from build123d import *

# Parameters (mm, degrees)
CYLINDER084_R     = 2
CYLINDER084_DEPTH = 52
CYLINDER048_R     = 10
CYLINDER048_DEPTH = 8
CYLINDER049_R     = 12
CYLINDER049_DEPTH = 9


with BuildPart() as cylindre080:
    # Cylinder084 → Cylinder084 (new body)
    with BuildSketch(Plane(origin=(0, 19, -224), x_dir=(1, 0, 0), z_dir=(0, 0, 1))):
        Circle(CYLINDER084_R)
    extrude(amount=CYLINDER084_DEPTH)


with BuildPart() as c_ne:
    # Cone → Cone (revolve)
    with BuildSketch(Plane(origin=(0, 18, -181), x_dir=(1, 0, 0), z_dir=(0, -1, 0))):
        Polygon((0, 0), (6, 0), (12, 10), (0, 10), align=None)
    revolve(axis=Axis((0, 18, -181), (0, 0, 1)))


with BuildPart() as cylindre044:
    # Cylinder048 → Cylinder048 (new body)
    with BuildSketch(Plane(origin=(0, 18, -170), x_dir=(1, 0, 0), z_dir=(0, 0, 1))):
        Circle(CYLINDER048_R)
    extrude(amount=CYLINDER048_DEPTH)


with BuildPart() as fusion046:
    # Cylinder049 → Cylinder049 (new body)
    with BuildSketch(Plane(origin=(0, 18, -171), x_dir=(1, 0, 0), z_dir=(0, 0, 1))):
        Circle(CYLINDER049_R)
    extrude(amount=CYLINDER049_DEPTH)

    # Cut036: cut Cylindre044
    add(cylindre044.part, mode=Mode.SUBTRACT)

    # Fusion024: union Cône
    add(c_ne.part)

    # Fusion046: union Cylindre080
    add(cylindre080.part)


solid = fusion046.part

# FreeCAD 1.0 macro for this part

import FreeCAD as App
import Part
import Sketcher
from FreeCAD import Vector
Q = App.Units.Quantity


def add_polygon(sketch, points):
    """Adds a closed chain of lines whose ends are joined by coincident constraints."""
    first, n = sketch.GeometryCount, len(points)
    for a, b in zip(points, points[1:] + points[:1]):
        sketch.addGeometry(Part.LineSegment(App.Vector(*a, 0), App.Vector(*b, 0)), False)
    for i in range(n):
        sketch.addConstraint(Sketcher.Constraint("Coincident", first + i, 2, first + (i + 1) % n, 1))

doc = App.newDocument("Part")
params = doc.addObject("Spreadsheet::Sheet", "Params")
for row, (alias, value) in enumerate([
    ("sketch1_diameter", "4 mm"),
    ("pad1_length", "52 mm"),
    ("sketch2_width", "6 mm"),
    ("sketch2_width2", "12 mm"),
    ("sketch2_height", "10 mm"),
    ("revolution_angle", "360 deg"),
    ("sketch3_diameter", "20 mm"),
    ("pad2_length", "8 mm"),
    ("sketch4_diameter", "24 mm"),
    ("pad3_length", "9 mm"),
], start=1):
    params.set(f"A{row}", alias)
    params.set(f"B{row}", "=" + value)
    params.setAlias(f"B{row}", alias)

body = doc.addObject("PartDesign::Body", "Body")

# Sketch on XY plane
sketch1 = doc.addObject("Sketcher::SketchObject", "Sketch")
body.addObject(sketch1)
sketch1.AttachmentSupport = (doc.XY_Plane, [""])
sketch1.MapMode = "FlatFace"
sketch1.AttachmentOffset = App.Placement(Vector(0, 0, -224), App.Rotation())
sketch1.addGeometry(Part.Circle(Vector(0, 19, 0), Vector(0, 0, 1), 2), False)
sketch1.addConstraint(Sketcher.Constraint("PointOnObject", 0, 3, -2))
sketch1.addConstraint(Sketcher.Constraint("Diameter", 0, Q("4 mm")))
sketch1.addConstraint(Sketcher.Constraint("DistanceY", -1, 1, 0, 3, Q("19 mm")))
sketch1.setExpression("Constraints[1]", "Params.sketch1_diameter")
pad1 = doc.addObject("PartDesign::Pad", "Pad")
body.addObject(pad1)
pad1.Profile = sketch1
pad1.setExpression("Length", "Params.pad1_length")
body2 = doc.addObject("PartDesign::Body", "Body001")

# Sketch on XZ plane
sketch2 = doc.addObject("Sketcher::SketchObject", "Sketch001")
body2.addObject(sketch2)
sketch2.AttachmentSupport = (doc.getObject("XZ_Plane001"), [""])
sketch2.MapMode = "FlatFace"
sketch2.AttachmentOffset = App.Placement(Vector(0, 0, -18), App.Rotation())
add_polygon(sketch2, [(0, -181), (6, -181), (12, -171), (0, -171)])  # lines 0-3
sketch2.addConstraint(Sketcher.Constraint("Horizontal", 0))
sketch2.addConstraint(Sketcher.Constraint("Horizontal", 2))
sketch2.addConstraint(Sketcher.Constraint("Vertical", 3))
sketch2.addConstraint(Sketcher.Constraint("PointOnObject", 2, 2, -2))
sketch2.addConstraint(Sketcher.Constraint("DistanceX", 0, 1, 0, 2, Q("6 mm")))
sketch2.addConstraint(Sketcher.Constraint("DistanceX", 2, 2, 2, 1, Q("12 mm")))
sketch2.addConstraint(Sketcher.Constraint("DistanceY", 3, 2, 3, 1, Q("10 mm")))
sketch2.addConstraint(Sketcher.Constraint("DistanceY", 0, 2, -1, 1, Q("181 mm")))
sketch2.setExpression("Constraints[8]", "Params.sketch2_width")
sketch2.setExpression("Constraints[9]", "Params.sketch2_width2")
sketch2.setExpression("Constraints[10]", "Params.sketch2_height")
revolution = doc.addObject("PartDesign::Revolution", "Revolution")
body2.addObject(revolution)
revolution.Profile = sketch2
revolution.ReferenceAxis = (sketch2, ["V_Axis"])
revolution.setExpression("Angle", "Params.revolution_angle")
body3 = doc.addObject("PartDesign::Body", "Body002")

# Sketch on XY plane
sketch3 = doc.addObject("Sketcher::SketchObject", "Sketch002")
body3.addObject(sketch3)
sketch3.AttachmentSupport = (doc.getObject("XY_Plane002"), [""])
sketch3.MapMode = "FlatFace"
sketch3.AttachmentOffset = App.Placement(Vector(0, 0, -170), App.Rotation())
sketch3.addGeometry(Part.Circle(Vector(0, 18, 0), Vector(0, 0, 1), 10), False)
sketch3.addConstraint(Sketcher.Constraint("PointOnObject", 0, 3, -2))
sketch3.addConstraint(Sketcher.Constraint("Diameter", 0, Q("20 mm")))
sketch3.addConstraint(Sketcher.Constraint("DistanceY", -1, 1, 0, 3, Q("18 mm")))
sketch3.setExpression("Constraints[1]", "Params.sketch3_diameter")
pad2 = doc.addObject("PartDesign::Pad", "Pad001")
body3.addObject(pad2)
pad2.Profile = sketch3
pad2.setExpression("Length", "Params.pad2_length")
body4 = doc.addObject("PartDesign::Body", "Body003")

# Sketch on XY plane
sketch4 = doc.addObject("Sketcher::SketchObject", "Sketch003")
body4.addObject(sketch4)
sketch4.AttachmentSupport = (doc.getObject("XY_Plane003"), [""])
sketch4.MapMode = "FlatFace"
sketch4.AttachmentOffset = App.Placement(Vector(0, 0, -171), App.Rotation())
sketch4.addGeometry(Part.Circle(Vector(0, 18, 0), Vector(0, 0, 1), 12), False)
sketch4.addConstraint(Sketcher.Constraint("PointOnObject", 0, 3, -2))
sketch4.addConstraint(Sketcher.Constraint("Diameter", 0, Q("24 mm")))
sketch4.addConstraint(Sketcher.Constraint("DistanceY", -1, 1, 0, 3, Q("18 mm")))
sketch4.setExpression("Constraints[1]", "Params.sketch4_diameter")
pad3 = doc.addObject("PartDesign::Pad", "Pad002")
body4.addObject(pad3)
pad3.Profile = sketch4
pad3.setExpression("Length", "Params.pad3_length")
doc.recompute()

boolean = doc.addObject("PartDesign::Boolean", "Boolean")
body4.addObject(boolean)
boolean.Type = "Cut"
boolean.addObjects([body3])
doc.recompute()

boolean2 = doc.addObject("PartDesign::Boolean", "Boolean001")
body4.addObject(boolean2)
boolean2.Type = "Fuse"
boolean2.addObjects([body2])
doc.recompute()

boolean3 = doc.addObject("PartDesign::Boolean", "Boolean002")
body4.addObject(boolean3)
boolean3.Type = "Fuse"
boolean3.addObjects([body])

doc.recompute()
